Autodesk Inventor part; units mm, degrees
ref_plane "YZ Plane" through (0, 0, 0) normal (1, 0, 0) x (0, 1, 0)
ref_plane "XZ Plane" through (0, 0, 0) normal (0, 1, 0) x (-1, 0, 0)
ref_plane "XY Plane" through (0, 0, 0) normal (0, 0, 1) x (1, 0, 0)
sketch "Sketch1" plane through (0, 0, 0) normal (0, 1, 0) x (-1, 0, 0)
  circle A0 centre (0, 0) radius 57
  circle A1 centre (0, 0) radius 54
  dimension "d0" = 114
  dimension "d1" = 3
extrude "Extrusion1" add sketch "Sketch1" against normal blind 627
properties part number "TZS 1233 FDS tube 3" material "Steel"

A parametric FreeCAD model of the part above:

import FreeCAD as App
import Part
import Sketcher

doc = App.newDocument("Part")
params = doc.addObject("Spreadsheet::Sheet", "Params")
for row, (alias, value) in enumerate([
    ("sketch1_diameter", "114 mm"),
    ("sketch1_diameter2", "108 mm"),
    ("pad1_length", "627 mm"),
], start=1):
    params.set(f"A{row}", alias)
    params.set(f"B{row}", "=" + value)
    params.setAlias(f"B{row}", alias)

body = doc.addObject("PartDesign::Body", "Body")

# Sketch on XZ plane
sketch1 = body.newObject("Sketcher::SketchObject", "Sketch")
sketch1.AttachmentSupport = (doc.getObject("XZ_Plane"), [""])
sketch1.MapMode = "FlatFace"
sketch1.addGeometry([
    Part.Circle(App.Vector(0, 0, 0), App.Vector(0, 0, 1), 57),
    Part.Circle(App.Vector(0, 0, 0), App.Vector(0, 0, 1), 54),
], False)
sketch1.addConstraint([
    Sketcher.Constraint("Coincident", 0, 3, -1, 1),
    Sketcher.Constraint("Coincident", 1, 3, -1, 1),
    Sketcher.Constraint("Diameter", 0, 114.0),
    Sketcher.Constraint("Diameter", 1, 108.0),
])
sketch1.setExpression("Constraints[2]", "Params.sketch1_diameter")
sketch1.setExpression("Constraints[3]", "Params.sketch1_diameter2")
pad1 = body.newObject("PartDesign::Pad", "Pad")
pad1.Profile = sketch1
pad1.setExpression("Length", "Params.pad1_length")

doc.recompute()
